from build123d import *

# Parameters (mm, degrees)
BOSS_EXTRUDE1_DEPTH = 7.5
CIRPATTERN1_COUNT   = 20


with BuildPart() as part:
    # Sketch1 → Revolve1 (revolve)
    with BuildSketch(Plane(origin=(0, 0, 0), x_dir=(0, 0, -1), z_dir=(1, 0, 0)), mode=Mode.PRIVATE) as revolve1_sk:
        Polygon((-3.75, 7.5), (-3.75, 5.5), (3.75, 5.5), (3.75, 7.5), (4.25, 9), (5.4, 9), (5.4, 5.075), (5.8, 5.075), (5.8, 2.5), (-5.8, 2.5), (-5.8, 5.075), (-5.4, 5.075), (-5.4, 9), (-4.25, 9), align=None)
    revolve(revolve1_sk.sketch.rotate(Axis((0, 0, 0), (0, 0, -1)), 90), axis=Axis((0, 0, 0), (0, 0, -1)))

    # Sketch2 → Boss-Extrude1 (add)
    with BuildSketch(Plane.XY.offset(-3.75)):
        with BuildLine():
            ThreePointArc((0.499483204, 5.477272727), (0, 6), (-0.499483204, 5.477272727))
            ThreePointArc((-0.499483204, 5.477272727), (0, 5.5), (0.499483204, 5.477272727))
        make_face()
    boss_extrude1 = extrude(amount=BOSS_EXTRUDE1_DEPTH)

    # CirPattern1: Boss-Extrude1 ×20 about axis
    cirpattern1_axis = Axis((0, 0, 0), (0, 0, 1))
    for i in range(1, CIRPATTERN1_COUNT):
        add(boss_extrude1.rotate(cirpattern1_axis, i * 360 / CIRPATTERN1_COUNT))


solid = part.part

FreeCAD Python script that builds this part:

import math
import FreeCAD as App
import Part
import Sketcher
from FreeCAD import Vector
Q = App.Units.Quantity

doc = App.newDocument("Part")
params = doc.addObject("Spreadsheet::Sheet", "Params")
for row, (alias, value) in enumerate([
    ("sketch1_width", "2 mm"),
    ("sketch1_height", "0.4 mm"),
    ("sketch1_height2", "11.6 mm"),
    ("sketch1_height3", "7.5 mm"),
    ("revolution_angle", "360 deg"),
    ("sketch2_radius", "0.5 mm"),
    ("sketch2_radius2", "5.5 mm"),
    ("pad1_length", "7.5 mm"),
], start=1):
    params.set(f"A{row}", alias)
    params.set(f"B{row}", "=" + value)
    params.setAlias(f"B{row}", alias)

body = doc.addObject("PartDesign::Body", "Body")

# Sketch on YZ plane
sketch1 = body.newObject("Sketcher::SketchObject", "Sketch")
sketch1.AttachmentSupport = (doc.getObject("YZ_Plane"), [""])
sketch1.MapMode = "FlatFace"
sketch1.addGeometry(Part.LineSegment(Vector(5.5, 3.75, 0), Vector(7.5, 3.75, 0)), False)
sketch1.addGeometry(Part.LineSegment(Vector(7.5, 3.75, 0), Vector(9, 4.25, 0)), False)
sketch1.addGeometry(Part.LineSegment(Vector(9, 4.25, 0), Vector(9, 5.4, 0)), False)
sketch1.addGeometry(Part.LineSegment(Vector(9, 5.4, 0), Vector(5.075, 5.4, 0)), False)
sketch1.addGeometry(Part.LineSegment(Vector(5.075, 5.4, 0), Vector(5.075, 5.8, 0)), False)
sketch1.addGeometry(Part.LineSegment(Vector(5.075, 5.8, 0), Vector(2.5, 5.8, 0)), False)
sketch1.addGeometry(Part.LineSegment(Vector(2.5, 5.8, 0), Vector(2.5, -5.8, 0)), False)
sketch1.addGeometry(Part.LineSegment(Vector(2.5, -5.8, 0), Vector(5.075, -5.8, 0)), False)
sketch1.addGeometry(Part.LineSegment(Vector(5.075, -5.8, 0), Vector(5.075, -5.4, 0)), False)
sketch1.addGeometry(Part.LineSegment(Vector(5.075, -5.4, 0), Vector(9, -5.4, 0)), False)
sketch1.addGeometry(Part.LineSegment(Vector(9, -5.4, 0), Vector(9, -4.25, 0)), False)
sketch1.addGeometry(Part.LineSegment(Vector(9, -4.25, 0), Vector(7.5, -3.75, 0)), False)
sketch1.addGeometry(Part.LineSegment(Vector(7.5, -3.75, 0), Vector(5.5, -3.75, 0)), False)
sketch1.addGeometry(Part.LineSegment(Vector(5.5, -3.75, 0), Vector(5.5, 3.75, 0)), False)
sketch1.addConstraint(Sketcher.Constraint("Coincident", 0, 2, 1, 1))
sketch1.addConstraint(Sketcher.Constraint("Coincident", 1, 2, 2, 1))
sketch1.addConstraint(Sketcher.Constraint("Coincident", 2, 2, 3, 1))
sketch1.addConstraint(Sketcher.Constraint("Coincident", 3, 2, 4, 1))
sketch1.addConstraint(Sketcher.Constraint("Coincident", 4, 2, 5, 1))
sketch1.addConstraint(Sketcher.Constraint("Coincident", 5, 2, 6, 1))
sketch1.addConstraint(Sketcher.Constraint("Coincident", 6, 2, 7, 1))
sketch1.addConstraint(Sketcher.Constraint("Coincident", 7, 2, 8, 1))
sketch1.addConstraint(Sketcher.Constraint("Coincident", 8, 2, 9, 1))
sketch1.addConstraint(Sketcher.Constraint("Coincident", 9, 2, 10, 1))
sketch1.addConstraint(Sketcher.Constraint("Coincident", 10, 2, 11, 1))
sketch1.addConstraint(Sketcher.Constraint("Coincident", 11, 2, 12, 1))
sketch1.addConstraint(Sketcher.Constraint("Coincident", 12, 2, 13, 1))
sketch1.addConstraint(Sketcher.Constraint("Coincident", 13, 2, 0, 1))
sketch1.addConstraint(Sketcher.Constraint("Horizontal", 0))
sketch1.addConstraint(Sketcher.Constraint("Vertical", 2))
sketch1.addConstraint(Sketcher.Constraint("Horizontal", 3))
sketch1.addConstraint(Sketcher.Constraint("Vertical", 4))
sketch1.addConstraint(Sketcher.Constraint("Horizontal", 5))
sketch1.addConstraint(Sketcher.Constraint("Vertical", 6))
sketch1.addConstraint(Sketcher.Constraint("Horizontal", 7))
sketch1.addConstraint(Sketcher.Constraint("Vertical", 8))
sketch1.addConstraint(Sketcher.Constraint("Horizontal", 9))
sketch1.addConstraint(Sketcher.Constraint("Vertical", 10))
sketch1.addConstraint(Sketcher.Constraint("Horizontal", 12))
sketch1.addConstraint(Sketcher.Constraint("Vertical", 13))
sketch1.addConstraint(Sketcher.Constraint("Symmetric", 4, 2, 7, 2, -1))
sketch1.addConstraint(Sketcher.Constraint("Symmetric", 2, 2, 9, 2, -1))
sketch1.addConstraint(Sketcher.Constraint("Symmetric", 0, 2, 11, 2, -1))
sketch1.addConstraint(Sketcher.Constraint("Equal", 2, 10))
sketch1.addConstraint(Sketcher.Constraint("DistanceX", 0, 1, 0, 2, Q("2 mm")))
sketch1.addConstraint(Sketcher.Constraint("DistanceY", 4, 1, 4, 2, Q("0.4 mm")))
sketch1.addConstraint(Sketcher.Constraint("DistanceY", 6, 2, 6, 1, Q("11.6 mm")))
sketch1.addConstraint(Sketcher.Constraint("DistanceY", 13, 1, 13, 2, Q("7.5 mm")))
sketch1.addConstraint(Sketcher.Constraint("DistanceX", -1, 1, 1, 2, Q("9 mm")))
sketch1.addConstraint(Sketcher.Constraint("DistanceX", 5, 2, 0, 2, Q("5 mm")))
sketch1.addConstraint(Sketcher.Constraint("DistanceY", 10, 2, 0, 2, Q("8 mm")))
sketch1.addConstraint(Sketcher.Constraint("DistanceX", -1, 1, 0, 2, Q("7.5 mm")))
sketch1.addConstraint(Sketcher.Constraint("DistanceX", 3, 2, 3, 1, Q("3.925 mm")))
sketch1.setExpression("Constraints[30]", "Params.sketch1_width")
sketch1.setExpression("Constraints[31]", "Params.sketch1_height")
sketch1.setExpression("Constraints[32]", "Params.sketch1_height2")
sketch1.setExpression("Constraints[33]", "Params.sketch1_height3")
revolution = body.newObject("PartDesign::Revolution", "Revolution")
revolution.Profile = sketch1
revolution.ReferenceAxis = (sketch1, ["V_Axis"])
revolution.setExpression("Angle", "Params.revolution_angle")

# Sketch on XY plane
sketch2 = body.newObject("Sketcher::SketchObject", "Sketch001")
sketch2.AttachmentSupport = (doc.getObject("XY_Plane"), [""])
sketch2.MapMode = "FlatFace"
sketch2.AttachmentOffset = App.Placement(Vector(0, 0, -3.75), App.Rotation())
sketch2.addGeometry(Part.ArcOfCircle(Part.Circle(Vector(0, 5.5, 0), Vector(0, 0, 1), 0.5), math.radians(-2.605251), math.radians(182.605251)), False)
sketch2.addGeometry(Part.ArcOfCircle(Part.Circle(Vector(0, 0, 0), Vector(0, 0, 1), 5.5), math.radians(84.789497), math.radians(95.210503)), False)
sketch2.addConstraint(Sketcher.Constraint("Coincident", 0, 1, 1, 1))
sketch2.addConstraint(Sketcher.Constraint("Coincident", 1, 2, 0, 2))
sketch2.addConstraint(Sketcher.Constraint("Coincident", 1, 3, -1, 1))
sketch2.addConstraint(Sketcher.Constraint("PointOnObject", 0, 3, -2))
sketch2.addConstraint(Sketcher.Constraint("Radius", 0, Q("0.5 mm")))
sketch2.addConstraint(Sketcher.Constraint("Radius", 1, Q("5.5 mm")))
sketch2.addConstraint(Sketcher.Constraint("DistanceY", -1, 1, 0, 3, Q("5.5 mm")))
sketch2.setExpression("Constraints[4]", "Params.sketch2_radius")
sketch2.setExpression("Constraints[5]", "Params.sketch2_radius2")
pad1 = body.newObject("PartDesign::Pad", "Pad")
pad1.Profile = sketch2
pad1.setExpression("Length", "Params.pad1_length")
doc.recompute()

polarpattern = body.newObject("PartDesign::PolarPattern", "PolarPattern")
polarpattern.Originals = [pad1]
polarpattern.Axis = (doc.getObject("Z_Axis"), [""])
polarpattern.Angle = 360
polarpattern.Occurrences = 20
body.Tip = polarpattern

doc.recompute()
